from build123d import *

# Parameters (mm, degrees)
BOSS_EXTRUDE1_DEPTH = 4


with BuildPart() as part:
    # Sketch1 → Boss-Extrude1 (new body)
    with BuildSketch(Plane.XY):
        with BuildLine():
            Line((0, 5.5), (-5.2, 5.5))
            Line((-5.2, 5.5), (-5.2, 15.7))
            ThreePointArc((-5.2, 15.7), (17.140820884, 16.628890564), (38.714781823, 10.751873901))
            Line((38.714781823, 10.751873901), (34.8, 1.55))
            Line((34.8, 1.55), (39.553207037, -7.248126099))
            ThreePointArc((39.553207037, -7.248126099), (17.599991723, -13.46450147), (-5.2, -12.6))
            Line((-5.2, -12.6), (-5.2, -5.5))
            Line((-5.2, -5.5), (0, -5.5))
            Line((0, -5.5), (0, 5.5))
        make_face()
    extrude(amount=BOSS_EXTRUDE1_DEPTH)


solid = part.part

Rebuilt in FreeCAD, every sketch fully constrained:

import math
import FreeCAD as App
import Part
import Sketcher

doc = App.newDocument("Part")
body = doc.addObject("PartDesign::Body", "Body")

# Sketch on XY plane
sketch1 = doc.addObject("Sketcher::SketchObject", "Sketch")
body.addObject(sketch1)
sketch1.AttachmentSupport = (doc.XY_Plane, [""])
sketch1.MapMode = "FlatFace"
sketch1.addGeometry([
    Part.LineSegment(App.Vector(-5.2, 5.5, 0), App.Vector(0, 5.5, 0)),  # 0
    Part.LineSegment(App.Vector(0, 5.5, 0), App.Vector(0, -5.5, 0)),  # 1
    Part.LineSegment(App.Vector(0, -5.5, 0), App.Vector(-5.2, -5.5, 0)),  # 2
    Part.LineSegment(App.Vector(-5.2, -5.5, 0), App.Vector(-5.2, -12.6, 0)),  # 3
    Part.ArcOfCircle(Part.Circle(App.Vector(8.931947, 59.019048, 0), App.Vector(0, 0, 1), 73), math.radians(-101.162268), math.radians(-65.198912)),  # 4
    Part.LineSegment(App.Vector(39.553207, -7.248126, 0), App.Vector(34.8, 1.55, 0)),  # 5
    Part.LineSegment(App.Vector(34.8, 1.55, 0), App.Vector(38.714782, 10.751874, 0)),  # 6
    Part.ArcOfCircle(Part.Circle(App.Vector(8.967221, -55.912079, 0), App.Vector(0, 0, 1), 73), math.radians(65.952062), math.radians(101.190489)),  # 7
    Part.LineSegment(App.Vector(-5.2, 15.7, 0), App.Vector(-5.2, 5.5, 0)),  # 8
], False)
sketch1.addConstraint([
    Sketcher.Constraint("Coincident", 0, 2, 1, 1),
    Sketcher.Constraint("Coincident", 1, 2, 2, 1),
    Sketcher.Constraint("Coincident", 2, 2, 3, 1),
    Sketcher.Constraint("Coincident", 3, 2, 4, 1),
    Sketcher.Constraint("Coincident", 4, 2, 5, 1),
    Sketcher.Constraint("Coincident", 5, 2, 6, 1),
    Sketcher.Constraint("Coincident", 6, 2, 7, 1),
    Sketcher.Constraint("Coincident", 7, 2, 8, 1),
    Sketcher.Constraint("Coincident", 8, 2, 0, 1),
    Sketcher.Constraint("Horizontal", 0),
    Sketcher.Constraint("Vertical", 1),
    Sketcher.Constraint("Horizontal", 2),
    Sketcher.Constraint("Vertical", 3),
    Sketcher.Constraint("Vertical", 8),
    Sketcher.Constraint("Equal", 4, 7),
    Sketcher.Constraint("Symmetric", 0, 2, 1, 2, -1, 1),
    Sketcher.Constraint("Vertical", 3, 2, 7, 2),
    Sketcher.Constraint("Equal", 5, 6),
    Sketcher.Constraint("Radius", 4, 73.0),
    Sketcher.Constraint("DistanceY", 1, 2, 1, 1, 11.0),
    Sketcher.Constraint("Distance", 5, 10.0),
    Sketcher.Constraint("DistanceX", 0, 1, 0, 2, 5.2),
    Sketcher.Constraint("DistanceY", 3, 2, 3, 1, 7.1),
    Sketcher.Constraint("DistanceY", 8, 2, 8, 1, 10.2),
    Sketcher.Constraint("DistanceX", 2, 2, 5, 2, 40.0),
    Sketcher.Constraint("DistanceY", 4, 2, 6, 2, 18.0),
    Sketcher.Constraint("DistanceY", -1, 1, 5, 2, 1.55),
    Sketcher.Constraint("DistanceY", -1, 1, 4, 3, 59.019048),
])
pad1 = doc.addObject("PartDesign::Pad", "Pad")
body.addObject(pad1)
pad1.Profile = sketch1
pad1.Length = 4

doc.recompute()
